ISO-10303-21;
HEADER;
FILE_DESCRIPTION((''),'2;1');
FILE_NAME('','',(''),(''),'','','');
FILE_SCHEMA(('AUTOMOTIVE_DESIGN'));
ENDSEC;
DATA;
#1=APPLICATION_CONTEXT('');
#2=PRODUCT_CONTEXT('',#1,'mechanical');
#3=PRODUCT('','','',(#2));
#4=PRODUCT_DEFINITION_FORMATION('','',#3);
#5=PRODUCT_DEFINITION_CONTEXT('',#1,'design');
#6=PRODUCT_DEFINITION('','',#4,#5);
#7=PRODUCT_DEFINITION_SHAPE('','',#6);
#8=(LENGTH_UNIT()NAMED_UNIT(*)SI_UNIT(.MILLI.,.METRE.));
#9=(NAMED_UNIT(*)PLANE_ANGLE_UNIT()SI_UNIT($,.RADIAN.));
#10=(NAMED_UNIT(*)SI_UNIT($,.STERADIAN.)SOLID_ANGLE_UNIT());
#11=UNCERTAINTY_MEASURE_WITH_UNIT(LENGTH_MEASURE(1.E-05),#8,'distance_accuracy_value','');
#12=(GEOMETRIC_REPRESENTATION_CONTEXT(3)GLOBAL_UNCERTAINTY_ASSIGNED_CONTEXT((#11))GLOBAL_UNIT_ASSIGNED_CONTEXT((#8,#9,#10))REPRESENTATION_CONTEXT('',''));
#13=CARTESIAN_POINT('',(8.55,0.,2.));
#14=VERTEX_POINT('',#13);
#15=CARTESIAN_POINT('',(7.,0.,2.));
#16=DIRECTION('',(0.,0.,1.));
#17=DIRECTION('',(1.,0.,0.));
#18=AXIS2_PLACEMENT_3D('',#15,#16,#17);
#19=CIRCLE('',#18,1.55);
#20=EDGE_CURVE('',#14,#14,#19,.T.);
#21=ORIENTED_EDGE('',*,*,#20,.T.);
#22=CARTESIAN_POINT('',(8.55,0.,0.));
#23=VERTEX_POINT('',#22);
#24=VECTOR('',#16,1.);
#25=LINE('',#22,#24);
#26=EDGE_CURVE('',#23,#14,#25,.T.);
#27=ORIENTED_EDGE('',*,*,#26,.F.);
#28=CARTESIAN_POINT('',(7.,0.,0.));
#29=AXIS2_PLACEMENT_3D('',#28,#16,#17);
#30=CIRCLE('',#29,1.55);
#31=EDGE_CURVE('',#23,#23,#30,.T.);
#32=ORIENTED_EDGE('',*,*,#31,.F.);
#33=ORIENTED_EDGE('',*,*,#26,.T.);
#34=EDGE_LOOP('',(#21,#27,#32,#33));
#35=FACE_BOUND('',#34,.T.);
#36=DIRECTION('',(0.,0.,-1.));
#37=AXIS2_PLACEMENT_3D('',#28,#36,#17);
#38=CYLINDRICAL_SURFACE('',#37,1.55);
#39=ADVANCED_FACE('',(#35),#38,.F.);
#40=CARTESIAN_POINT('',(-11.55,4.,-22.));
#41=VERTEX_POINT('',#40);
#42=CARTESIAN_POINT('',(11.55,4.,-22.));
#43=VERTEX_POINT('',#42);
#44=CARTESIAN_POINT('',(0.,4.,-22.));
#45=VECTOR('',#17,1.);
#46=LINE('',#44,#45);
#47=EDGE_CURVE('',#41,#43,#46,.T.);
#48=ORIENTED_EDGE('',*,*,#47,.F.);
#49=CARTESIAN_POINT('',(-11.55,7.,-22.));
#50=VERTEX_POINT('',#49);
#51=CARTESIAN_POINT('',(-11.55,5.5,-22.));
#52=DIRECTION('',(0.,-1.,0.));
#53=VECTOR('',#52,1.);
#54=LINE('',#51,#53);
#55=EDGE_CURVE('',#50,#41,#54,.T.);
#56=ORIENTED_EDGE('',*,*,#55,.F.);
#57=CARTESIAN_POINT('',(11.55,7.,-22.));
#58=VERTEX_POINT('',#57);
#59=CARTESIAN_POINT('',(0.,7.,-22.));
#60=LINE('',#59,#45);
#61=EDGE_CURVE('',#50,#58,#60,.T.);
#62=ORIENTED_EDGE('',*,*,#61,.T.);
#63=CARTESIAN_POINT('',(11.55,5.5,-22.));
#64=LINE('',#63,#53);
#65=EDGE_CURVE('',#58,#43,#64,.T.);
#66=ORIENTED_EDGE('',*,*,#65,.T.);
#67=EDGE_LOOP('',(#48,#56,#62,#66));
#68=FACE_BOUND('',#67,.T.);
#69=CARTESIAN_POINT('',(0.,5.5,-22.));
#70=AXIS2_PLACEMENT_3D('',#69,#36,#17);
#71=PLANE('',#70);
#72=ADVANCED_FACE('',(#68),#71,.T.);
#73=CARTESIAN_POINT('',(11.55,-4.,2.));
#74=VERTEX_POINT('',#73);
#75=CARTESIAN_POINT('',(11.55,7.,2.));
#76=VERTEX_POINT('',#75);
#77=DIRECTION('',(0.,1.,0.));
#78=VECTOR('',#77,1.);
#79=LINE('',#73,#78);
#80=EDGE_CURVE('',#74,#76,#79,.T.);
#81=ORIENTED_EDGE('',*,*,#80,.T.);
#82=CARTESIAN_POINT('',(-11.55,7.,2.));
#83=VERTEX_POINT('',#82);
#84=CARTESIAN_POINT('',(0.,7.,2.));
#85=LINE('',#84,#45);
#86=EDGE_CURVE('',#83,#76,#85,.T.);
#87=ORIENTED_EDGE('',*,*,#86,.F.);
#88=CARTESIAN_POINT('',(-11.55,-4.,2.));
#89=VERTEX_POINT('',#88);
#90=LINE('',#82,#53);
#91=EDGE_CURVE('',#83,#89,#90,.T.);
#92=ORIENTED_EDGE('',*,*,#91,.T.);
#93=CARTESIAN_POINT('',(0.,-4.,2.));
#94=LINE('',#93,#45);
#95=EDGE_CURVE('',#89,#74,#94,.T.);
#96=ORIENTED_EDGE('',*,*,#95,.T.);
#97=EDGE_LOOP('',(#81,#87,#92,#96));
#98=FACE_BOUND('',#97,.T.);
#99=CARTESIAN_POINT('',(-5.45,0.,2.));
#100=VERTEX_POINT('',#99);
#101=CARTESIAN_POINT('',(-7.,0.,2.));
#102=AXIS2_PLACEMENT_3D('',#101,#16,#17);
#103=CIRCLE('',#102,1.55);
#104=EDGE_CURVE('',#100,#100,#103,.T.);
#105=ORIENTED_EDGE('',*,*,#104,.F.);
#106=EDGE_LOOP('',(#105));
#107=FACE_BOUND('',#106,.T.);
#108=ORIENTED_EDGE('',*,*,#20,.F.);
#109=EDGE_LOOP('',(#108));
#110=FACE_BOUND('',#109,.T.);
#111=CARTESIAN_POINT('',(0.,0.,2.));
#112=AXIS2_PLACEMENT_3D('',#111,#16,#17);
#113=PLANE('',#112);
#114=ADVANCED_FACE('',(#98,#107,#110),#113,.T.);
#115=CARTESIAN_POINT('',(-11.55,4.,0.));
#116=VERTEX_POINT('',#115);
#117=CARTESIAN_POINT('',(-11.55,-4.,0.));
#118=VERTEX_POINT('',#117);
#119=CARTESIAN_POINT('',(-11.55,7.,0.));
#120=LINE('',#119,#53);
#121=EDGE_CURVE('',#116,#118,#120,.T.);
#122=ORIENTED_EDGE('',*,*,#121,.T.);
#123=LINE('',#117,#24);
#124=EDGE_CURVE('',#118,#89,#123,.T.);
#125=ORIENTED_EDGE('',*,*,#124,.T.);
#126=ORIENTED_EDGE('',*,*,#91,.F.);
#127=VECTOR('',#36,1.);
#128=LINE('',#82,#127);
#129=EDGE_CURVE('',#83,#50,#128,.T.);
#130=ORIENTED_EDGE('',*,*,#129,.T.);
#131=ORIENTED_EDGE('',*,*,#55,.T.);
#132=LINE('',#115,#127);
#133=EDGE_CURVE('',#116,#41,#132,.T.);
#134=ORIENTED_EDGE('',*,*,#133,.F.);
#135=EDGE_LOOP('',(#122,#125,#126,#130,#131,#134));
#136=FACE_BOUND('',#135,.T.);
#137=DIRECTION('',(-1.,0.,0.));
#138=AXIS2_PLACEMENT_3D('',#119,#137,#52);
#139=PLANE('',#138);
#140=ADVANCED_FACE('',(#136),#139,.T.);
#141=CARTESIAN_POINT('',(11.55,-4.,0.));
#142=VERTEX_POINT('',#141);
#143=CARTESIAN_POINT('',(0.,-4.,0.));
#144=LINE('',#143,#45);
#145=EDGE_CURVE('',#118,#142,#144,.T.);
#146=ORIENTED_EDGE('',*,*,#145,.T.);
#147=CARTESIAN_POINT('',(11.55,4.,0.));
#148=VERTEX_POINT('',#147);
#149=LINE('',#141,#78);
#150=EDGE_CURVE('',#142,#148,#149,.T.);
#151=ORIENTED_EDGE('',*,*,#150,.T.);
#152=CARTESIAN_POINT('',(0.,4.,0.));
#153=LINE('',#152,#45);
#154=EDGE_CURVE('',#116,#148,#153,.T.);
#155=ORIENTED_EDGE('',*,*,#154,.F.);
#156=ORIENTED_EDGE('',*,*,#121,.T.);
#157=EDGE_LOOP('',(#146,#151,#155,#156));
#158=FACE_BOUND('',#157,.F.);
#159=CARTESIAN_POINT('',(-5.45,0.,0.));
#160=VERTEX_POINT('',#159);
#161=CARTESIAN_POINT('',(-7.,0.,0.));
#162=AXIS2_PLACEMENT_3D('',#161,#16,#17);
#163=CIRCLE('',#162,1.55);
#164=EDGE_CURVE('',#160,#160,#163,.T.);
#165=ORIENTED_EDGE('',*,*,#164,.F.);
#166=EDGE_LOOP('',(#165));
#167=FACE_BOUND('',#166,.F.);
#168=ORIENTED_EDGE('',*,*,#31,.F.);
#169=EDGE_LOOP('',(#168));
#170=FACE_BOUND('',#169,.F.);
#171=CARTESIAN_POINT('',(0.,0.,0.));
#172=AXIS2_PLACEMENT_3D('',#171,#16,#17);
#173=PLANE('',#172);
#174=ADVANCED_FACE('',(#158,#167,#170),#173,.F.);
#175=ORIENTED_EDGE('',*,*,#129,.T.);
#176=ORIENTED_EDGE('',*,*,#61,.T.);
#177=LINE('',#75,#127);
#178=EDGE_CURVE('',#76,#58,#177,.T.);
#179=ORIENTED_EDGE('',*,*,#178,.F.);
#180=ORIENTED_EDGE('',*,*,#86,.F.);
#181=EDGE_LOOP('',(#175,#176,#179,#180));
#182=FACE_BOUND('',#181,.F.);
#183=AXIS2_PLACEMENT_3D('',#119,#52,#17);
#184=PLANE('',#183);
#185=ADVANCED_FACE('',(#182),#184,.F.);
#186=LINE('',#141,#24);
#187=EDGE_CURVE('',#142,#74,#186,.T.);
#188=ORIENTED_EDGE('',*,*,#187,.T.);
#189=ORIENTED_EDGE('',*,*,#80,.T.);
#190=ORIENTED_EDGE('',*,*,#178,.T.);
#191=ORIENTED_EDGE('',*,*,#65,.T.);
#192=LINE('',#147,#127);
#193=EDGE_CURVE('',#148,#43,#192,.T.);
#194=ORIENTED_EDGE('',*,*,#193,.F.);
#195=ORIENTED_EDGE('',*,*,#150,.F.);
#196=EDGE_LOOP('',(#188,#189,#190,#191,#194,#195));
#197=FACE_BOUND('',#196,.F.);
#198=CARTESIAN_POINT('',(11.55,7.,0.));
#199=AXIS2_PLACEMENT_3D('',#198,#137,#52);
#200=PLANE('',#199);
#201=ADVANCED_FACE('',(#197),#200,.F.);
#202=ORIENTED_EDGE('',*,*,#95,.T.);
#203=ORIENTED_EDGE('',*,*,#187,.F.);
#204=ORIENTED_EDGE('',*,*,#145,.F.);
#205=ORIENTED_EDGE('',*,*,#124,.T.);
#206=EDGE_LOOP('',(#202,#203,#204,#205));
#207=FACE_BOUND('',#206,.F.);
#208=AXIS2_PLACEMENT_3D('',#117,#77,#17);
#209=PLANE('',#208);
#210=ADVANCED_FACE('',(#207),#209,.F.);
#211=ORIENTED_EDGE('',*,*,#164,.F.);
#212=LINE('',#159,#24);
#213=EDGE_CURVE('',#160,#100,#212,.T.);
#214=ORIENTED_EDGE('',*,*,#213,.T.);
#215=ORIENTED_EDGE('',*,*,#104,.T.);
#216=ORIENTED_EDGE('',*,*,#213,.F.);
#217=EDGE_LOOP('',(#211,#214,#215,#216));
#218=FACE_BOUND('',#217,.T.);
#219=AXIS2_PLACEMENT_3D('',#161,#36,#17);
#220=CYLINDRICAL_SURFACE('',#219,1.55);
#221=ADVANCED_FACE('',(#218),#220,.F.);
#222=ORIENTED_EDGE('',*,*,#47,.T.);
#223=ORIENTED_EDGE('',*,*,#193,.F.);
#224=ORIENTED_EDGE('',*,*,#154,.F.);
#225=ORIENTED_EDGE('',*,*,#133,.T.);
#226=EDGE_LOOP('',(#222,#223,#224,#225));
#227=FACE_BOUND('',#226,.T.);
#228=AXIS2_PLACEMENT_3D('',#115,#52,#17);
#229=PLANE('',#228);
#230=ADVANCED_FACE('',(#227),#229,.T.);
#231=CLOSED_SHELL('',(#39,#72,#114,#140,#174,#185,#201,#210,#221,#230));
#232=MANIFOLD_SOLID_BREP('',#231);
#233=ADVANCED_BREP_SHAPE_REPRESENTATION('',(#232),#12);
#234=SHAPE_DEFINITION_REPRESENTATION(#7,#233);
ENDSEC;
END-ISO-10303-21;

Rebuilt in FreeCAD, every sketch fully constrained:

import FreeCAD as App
import Part
import Sketcher
from FreeCAD import Vector

doc = App.newDocument("Part")
params = doc.addObject("Spreadsheet::Sheet", "Params")
for row, (alias, value) in enumerate([
    ("sketch1_diameter", "3.1 mm"),
    ("sketch1_height", "11 mm"),
    ("sketch1_width", "23.1 mm"),
    ("pad1_length", "2 mm"),
    ("sketch2_height", "3 mm"),
    ("sketch2_width", "23.1 mm"),
    ("pad2_length", "22 mm"),
], start=1):
    params.set(f"A{row}", alias)
    params.set(f"B{row}", "=" + value)
    params.setAlias(f"B{row}", alias)

body = doc.addObject("PartDesign::Body", "Body")

# Sketch on XY plane
sketch1 = body.newObject("Sketcher::SketchObject", "Sketch")
sketch1.AttachmentSupport = (doc.getObject("XY_Plane"), [""])
sketch1.MapMode = "FlatFace"
sketch1.addGeometry(Part.LineSegment(Vector(-11.6, -4, 0), Vector(11.6, -4, 0)), False)
sketch1.addGeometry(Part.LineSegment(Vector(11.6, -4, 0), Vector(11.6, 7, 0)), False)
sketch1.addGeometry(Part.LineSegment(Vector(11.6, 7, 0), Vector(-11.6, 7, 0)), False)
sketch1.addGeometry(Part.LineSegment(Vector(-11.6, 7, 0), Vector(-11.6, -4, 0)), False)
sketch1.addGeometry(Part.Circle(Vector(-7, 0, 0), Vector(0, 0, 1), 1.6), False)
sketch1.addGeometry(Part.Circle(Vector(7, 0, 0), Vector(0, 0, 1), 1.6), False)
sketch1.addConstraint(Sketcher.Constraint("Coincident", 0, 2, 1, 1))
sketch1.addConstraint(Sketcher.Constraint("Coincident", 1, 2, 2, 1))
sketch1.addConstraint(Sketcher.Constraint("Coincident", 2, 2, 3, 1))
sketch1.addConstraint(Sketcher.Constraint("Coincident", 3, 2, 0, 1))
sketch1.addConstraint(Sketcher.Constraint("Horizontal", 0))
sketch1.addConstraint(Sketcher.Constraint("Vertical", 1))
sketch1.addConstraint(Sketcher.Constraint("Horizontal", 2))
sketch1.addConstraint(Sketcher.Constraint("Vertical", 3))
sketch1.addConstraint(Sketcher.Constraint("Equal", 4, 5))
sketch1.addConstraint(Sketcher.Constraint("Symmetric", 4, 3, 5, 3, -1, 1))
sketch1.addConstraint(Sketcher.Constraint("PointOnObject", 4, 3, -1))
sketch1.addConstraint(Sketcher.Constraint("Diameter", 4, 3.1))
sketch1.addConstraint(Sketcher.Constraint("DistanceY", 1, 1, 1, 2, 11.0))
sketch1.addConstraint(Sketcher.Constraint("DistanceX", 0, 1, 0, 2, 23.1))
sketch1.addConstraint(Sketcher.Constraint("DistanceX", 4, 3, -1, 1, 7.0))
sketch1.addConstraint(Sketcher.Constraint("DistanceY", 0, 2, -1, 1, 4.0))
sketch1.addConstraint(Sketcher.Constraint("DistanceX", -1, 1, 0, 2, 11.55))
sketch1.setExpression("Constraints[11]", "Params.sketch1_diameter")
sketch1.setExpression("Constraints[12]", "Params.sketch1_height")
sketch1.setExpression("Constraints[13]", "Params.sketch1_width")
pad1 = body.newObject("PartDesign::Pad", "Pad")
pad1.Profile = sketch1
pad1.setExpression("Length", "Params.pad1_length")

# Sketch on XY plane
sketch2 = body.newObject("Sketcher::SketchObject", "Sketch001")
sketch2.AttachmentSupport = (doc.getObject("XY_Plane"), [""])
sketch2.MapMode = "FlatFace"
sketch2.addGeometry(Part.LineSegment(Vector(-11.6, 4, 0), Vector(-11.6, 7, 0)), False)
sketch2.addGeometry(Part.LineSegment(Vector(-11.6, 7, 0), Vector(11.6, 7, 0)), False)
sketch2.addGeometry(Part.LineSegment(Vector(11.6, 7, 0), Vector(11.6, 4, 0)), False)
sketch2.addGeometry(Part.LineSegment(Vector(11.6, 4, 0), Vector(-11.6, 4, 0)), False)
sketch2.addConstraint(Sketcher.Constraint("Coincident", 0, 2, 1, 1))
sketch2.addConstraint(Sketcher.Constraint("Coincident", 1, 2, 2, 1))
sketch2.addConstraint(Sketcher.Constraint("Coincident", 2, 2, 3, 1))
sketch2.addConstraint(Sketcher.Constraint("Coincident", 3, 2, 0, 1))
sketch2.addConstraint(Sketcher.Constraint("Vertical", 0))
sketch2.addConstraint(Sketcher.Constraint("Horizontal", 1))
sketch2.addConstraint(Sketcher.Constraint("Vertical", 2))
sketch2.addConstraint(Sketcher.Constraint("Horizontal", 3))
sketch2.addConstraint(Sketcher.Constraint("DistanceY", 0, 1, 0, 2, 3.0))
sketch2.addConstraint(Sketcher.Constraint("DistanceX", 1, 1, 1, 2, 23.1))
sketch2.addConstraint(Sketcher.Constraint("DistanceY", -1, 1, 0, 2, 7.0))
sketch2.addConstraint(Sketcher.Constraint("DistanceX", 0, 2, -1, 1, 11.55))
sketch2.setExpression("Constraints[8]", "Params.sketch2_height")
sketch2.setExpression("Constraints[9]", "Params.sketch2_width")
pad2 = body.newObject("PartDesign::Pad", "Pad001")
pad2.Profile = sketch2
pad2.setExpression("Length", "Params.pad2_length")
pad2.Reversed = True

doc.recompute()
